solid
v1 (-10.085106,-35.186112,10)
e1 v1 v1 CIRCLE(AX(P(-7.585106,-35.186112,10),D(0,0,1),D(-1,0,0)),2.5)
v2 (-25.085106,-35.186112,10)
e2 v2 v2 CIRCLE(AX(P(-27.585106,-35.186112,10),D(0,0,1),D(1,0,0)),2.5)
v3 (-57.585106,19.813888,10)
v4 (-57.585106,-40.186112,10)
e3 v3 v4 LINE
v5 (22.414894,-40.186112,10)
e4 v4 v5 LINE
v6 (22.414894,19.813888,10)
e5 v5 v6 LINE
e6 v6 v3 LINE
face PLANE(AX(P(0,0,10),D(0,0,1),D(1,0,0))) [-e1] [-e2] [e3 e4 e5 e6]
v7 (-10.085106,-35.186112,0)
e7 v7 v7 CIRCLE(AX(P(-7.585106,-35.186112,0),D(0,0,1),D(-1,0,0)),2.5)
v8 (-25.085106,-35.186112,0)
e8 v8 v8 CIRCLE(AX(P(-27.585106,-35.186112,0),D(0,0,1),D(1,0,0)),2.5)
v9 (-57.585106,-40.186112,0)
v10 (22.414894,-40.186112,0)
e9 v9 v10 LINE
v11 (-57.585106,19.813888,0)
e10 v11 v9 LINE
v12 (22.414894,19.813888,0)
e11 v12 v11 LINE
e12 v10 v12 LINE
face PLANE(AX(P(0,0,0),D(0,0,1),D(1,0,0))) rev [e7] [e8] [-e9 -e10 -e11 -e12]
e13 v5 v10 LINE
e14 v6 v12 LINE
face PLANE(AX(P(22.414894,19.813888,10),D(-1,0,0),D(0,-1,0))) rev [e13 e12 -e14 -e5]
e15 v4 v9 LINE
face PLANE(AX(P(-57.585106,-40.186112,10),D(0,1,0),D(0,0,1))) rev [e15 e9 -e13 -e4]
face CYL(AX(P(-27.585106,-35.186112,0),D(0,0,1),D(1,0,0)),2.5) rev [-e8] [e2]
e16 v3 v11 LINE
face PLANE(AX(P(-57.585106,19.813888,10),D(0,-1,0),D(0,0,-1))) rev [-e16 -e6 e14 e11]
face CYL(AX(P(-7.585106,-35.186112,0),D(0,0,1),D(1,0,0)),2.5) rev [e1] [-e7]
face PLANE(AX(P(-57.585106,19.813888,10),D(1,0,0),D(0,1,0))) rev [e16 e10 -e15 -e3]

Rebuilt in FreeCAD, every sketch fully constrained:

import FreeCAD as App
import Part
import Sketcher

V = App.Vector


def add_polygon(sketch, points):
    """Adds a closed chain of lines whose ends are joined by coincident constraints."""
    first, n = sketch.GeometryCount, len(points)
    for a, b in zip(points, points[1:] + points[:1]):
        sketch.addGeometry(Part.LineSegment(App.Vector(*a, 0), App.Vector(*b, 0)), False)
    for i in range(n):
        sketch.addConstraint(Sketcher.Constraint("Coincident", first + i, 2, first + (i + 1) % n, 1))

doc = App.newDocument("Part")
body = doc.addObject("PartDesign::Body", "Body")

sketch1 = body.newObject("Sketcher::SketchObject", "Sketch")
sketch1.AttachmentSupport = (doc.getObject("XY_Plane"), [""])
sketch1.MapMode = "FlatFace"
add_polygon(sketch1, [(-58, 20), (-58, -40), (22, -40), (22, 20)])
sketch1.addConstraint([
    Sketcher.Constraint("Vertical", 0),
    Sketcher.Constraint("Horizontal", 1),
    Sketcher.Constraint("Vertical", 2),
    Sketcher.Constraint("Horizontal", 3),
    Sketcher.Constraint("DistanceX", 1, 1, 1, 2, 80.0),
    Sketcher.Constraint("DistanceY", 0, 2, 0, 1, 60.0),
    Sketcher.Constraint("DistanceY", 0, 2, -1, 1, 40.186112),
    Sketcher.Constraint("DistanceX", 0, 2, -1, 1, 57.585106),
])
pad1 = body.newObject("PartDesign::Pad", "Pad")
pad1.Profile = sketch1
pad1.Length = 10

sketch2 = body.newObject("Sketcher::SketchObject", "Sketch001")
sketch2.AttachmentSupport = (doc.getObject("XY_Plane"), [""])
sketch2.MapMode = "FlatFace"
sketch2.AttachmentOffset = App.Placement(V(0, 0, 10), App.Rotation())
sketch2.addGeometry([
    Part.Circle(V(-27.6, -35.2, 0), V(0, 0, 1), 2.5),
    Part.Circle(V(-7.6, -35.2, 0), V(0, 0, 1), 2.5),
], False)
sketch2.addConstraint([
    Sketcher.Constraint("Equal", 0, 1),
    Sketcher.Constraint("Horizontal", 0, 3, 1, 3),
    Sketcher.Constraint("Diameter", 0, 5.0),
    Sketcher.Constraint("DistanceX", 0, 3, 1, 3, 20.0),
    Sketcher.Constraint("DistanceY", 0, 3, -1, 1, 35.186112),
    Sketcher.Constraint("DistanceX", 0, 3, -1, 1, 27.585106),
])
pocket1 = body.newObject("PartDesign::Pocket", "Pocket")
pocket1.Profile = sketch2
pocket1.Length = 10

doc.recompute()
